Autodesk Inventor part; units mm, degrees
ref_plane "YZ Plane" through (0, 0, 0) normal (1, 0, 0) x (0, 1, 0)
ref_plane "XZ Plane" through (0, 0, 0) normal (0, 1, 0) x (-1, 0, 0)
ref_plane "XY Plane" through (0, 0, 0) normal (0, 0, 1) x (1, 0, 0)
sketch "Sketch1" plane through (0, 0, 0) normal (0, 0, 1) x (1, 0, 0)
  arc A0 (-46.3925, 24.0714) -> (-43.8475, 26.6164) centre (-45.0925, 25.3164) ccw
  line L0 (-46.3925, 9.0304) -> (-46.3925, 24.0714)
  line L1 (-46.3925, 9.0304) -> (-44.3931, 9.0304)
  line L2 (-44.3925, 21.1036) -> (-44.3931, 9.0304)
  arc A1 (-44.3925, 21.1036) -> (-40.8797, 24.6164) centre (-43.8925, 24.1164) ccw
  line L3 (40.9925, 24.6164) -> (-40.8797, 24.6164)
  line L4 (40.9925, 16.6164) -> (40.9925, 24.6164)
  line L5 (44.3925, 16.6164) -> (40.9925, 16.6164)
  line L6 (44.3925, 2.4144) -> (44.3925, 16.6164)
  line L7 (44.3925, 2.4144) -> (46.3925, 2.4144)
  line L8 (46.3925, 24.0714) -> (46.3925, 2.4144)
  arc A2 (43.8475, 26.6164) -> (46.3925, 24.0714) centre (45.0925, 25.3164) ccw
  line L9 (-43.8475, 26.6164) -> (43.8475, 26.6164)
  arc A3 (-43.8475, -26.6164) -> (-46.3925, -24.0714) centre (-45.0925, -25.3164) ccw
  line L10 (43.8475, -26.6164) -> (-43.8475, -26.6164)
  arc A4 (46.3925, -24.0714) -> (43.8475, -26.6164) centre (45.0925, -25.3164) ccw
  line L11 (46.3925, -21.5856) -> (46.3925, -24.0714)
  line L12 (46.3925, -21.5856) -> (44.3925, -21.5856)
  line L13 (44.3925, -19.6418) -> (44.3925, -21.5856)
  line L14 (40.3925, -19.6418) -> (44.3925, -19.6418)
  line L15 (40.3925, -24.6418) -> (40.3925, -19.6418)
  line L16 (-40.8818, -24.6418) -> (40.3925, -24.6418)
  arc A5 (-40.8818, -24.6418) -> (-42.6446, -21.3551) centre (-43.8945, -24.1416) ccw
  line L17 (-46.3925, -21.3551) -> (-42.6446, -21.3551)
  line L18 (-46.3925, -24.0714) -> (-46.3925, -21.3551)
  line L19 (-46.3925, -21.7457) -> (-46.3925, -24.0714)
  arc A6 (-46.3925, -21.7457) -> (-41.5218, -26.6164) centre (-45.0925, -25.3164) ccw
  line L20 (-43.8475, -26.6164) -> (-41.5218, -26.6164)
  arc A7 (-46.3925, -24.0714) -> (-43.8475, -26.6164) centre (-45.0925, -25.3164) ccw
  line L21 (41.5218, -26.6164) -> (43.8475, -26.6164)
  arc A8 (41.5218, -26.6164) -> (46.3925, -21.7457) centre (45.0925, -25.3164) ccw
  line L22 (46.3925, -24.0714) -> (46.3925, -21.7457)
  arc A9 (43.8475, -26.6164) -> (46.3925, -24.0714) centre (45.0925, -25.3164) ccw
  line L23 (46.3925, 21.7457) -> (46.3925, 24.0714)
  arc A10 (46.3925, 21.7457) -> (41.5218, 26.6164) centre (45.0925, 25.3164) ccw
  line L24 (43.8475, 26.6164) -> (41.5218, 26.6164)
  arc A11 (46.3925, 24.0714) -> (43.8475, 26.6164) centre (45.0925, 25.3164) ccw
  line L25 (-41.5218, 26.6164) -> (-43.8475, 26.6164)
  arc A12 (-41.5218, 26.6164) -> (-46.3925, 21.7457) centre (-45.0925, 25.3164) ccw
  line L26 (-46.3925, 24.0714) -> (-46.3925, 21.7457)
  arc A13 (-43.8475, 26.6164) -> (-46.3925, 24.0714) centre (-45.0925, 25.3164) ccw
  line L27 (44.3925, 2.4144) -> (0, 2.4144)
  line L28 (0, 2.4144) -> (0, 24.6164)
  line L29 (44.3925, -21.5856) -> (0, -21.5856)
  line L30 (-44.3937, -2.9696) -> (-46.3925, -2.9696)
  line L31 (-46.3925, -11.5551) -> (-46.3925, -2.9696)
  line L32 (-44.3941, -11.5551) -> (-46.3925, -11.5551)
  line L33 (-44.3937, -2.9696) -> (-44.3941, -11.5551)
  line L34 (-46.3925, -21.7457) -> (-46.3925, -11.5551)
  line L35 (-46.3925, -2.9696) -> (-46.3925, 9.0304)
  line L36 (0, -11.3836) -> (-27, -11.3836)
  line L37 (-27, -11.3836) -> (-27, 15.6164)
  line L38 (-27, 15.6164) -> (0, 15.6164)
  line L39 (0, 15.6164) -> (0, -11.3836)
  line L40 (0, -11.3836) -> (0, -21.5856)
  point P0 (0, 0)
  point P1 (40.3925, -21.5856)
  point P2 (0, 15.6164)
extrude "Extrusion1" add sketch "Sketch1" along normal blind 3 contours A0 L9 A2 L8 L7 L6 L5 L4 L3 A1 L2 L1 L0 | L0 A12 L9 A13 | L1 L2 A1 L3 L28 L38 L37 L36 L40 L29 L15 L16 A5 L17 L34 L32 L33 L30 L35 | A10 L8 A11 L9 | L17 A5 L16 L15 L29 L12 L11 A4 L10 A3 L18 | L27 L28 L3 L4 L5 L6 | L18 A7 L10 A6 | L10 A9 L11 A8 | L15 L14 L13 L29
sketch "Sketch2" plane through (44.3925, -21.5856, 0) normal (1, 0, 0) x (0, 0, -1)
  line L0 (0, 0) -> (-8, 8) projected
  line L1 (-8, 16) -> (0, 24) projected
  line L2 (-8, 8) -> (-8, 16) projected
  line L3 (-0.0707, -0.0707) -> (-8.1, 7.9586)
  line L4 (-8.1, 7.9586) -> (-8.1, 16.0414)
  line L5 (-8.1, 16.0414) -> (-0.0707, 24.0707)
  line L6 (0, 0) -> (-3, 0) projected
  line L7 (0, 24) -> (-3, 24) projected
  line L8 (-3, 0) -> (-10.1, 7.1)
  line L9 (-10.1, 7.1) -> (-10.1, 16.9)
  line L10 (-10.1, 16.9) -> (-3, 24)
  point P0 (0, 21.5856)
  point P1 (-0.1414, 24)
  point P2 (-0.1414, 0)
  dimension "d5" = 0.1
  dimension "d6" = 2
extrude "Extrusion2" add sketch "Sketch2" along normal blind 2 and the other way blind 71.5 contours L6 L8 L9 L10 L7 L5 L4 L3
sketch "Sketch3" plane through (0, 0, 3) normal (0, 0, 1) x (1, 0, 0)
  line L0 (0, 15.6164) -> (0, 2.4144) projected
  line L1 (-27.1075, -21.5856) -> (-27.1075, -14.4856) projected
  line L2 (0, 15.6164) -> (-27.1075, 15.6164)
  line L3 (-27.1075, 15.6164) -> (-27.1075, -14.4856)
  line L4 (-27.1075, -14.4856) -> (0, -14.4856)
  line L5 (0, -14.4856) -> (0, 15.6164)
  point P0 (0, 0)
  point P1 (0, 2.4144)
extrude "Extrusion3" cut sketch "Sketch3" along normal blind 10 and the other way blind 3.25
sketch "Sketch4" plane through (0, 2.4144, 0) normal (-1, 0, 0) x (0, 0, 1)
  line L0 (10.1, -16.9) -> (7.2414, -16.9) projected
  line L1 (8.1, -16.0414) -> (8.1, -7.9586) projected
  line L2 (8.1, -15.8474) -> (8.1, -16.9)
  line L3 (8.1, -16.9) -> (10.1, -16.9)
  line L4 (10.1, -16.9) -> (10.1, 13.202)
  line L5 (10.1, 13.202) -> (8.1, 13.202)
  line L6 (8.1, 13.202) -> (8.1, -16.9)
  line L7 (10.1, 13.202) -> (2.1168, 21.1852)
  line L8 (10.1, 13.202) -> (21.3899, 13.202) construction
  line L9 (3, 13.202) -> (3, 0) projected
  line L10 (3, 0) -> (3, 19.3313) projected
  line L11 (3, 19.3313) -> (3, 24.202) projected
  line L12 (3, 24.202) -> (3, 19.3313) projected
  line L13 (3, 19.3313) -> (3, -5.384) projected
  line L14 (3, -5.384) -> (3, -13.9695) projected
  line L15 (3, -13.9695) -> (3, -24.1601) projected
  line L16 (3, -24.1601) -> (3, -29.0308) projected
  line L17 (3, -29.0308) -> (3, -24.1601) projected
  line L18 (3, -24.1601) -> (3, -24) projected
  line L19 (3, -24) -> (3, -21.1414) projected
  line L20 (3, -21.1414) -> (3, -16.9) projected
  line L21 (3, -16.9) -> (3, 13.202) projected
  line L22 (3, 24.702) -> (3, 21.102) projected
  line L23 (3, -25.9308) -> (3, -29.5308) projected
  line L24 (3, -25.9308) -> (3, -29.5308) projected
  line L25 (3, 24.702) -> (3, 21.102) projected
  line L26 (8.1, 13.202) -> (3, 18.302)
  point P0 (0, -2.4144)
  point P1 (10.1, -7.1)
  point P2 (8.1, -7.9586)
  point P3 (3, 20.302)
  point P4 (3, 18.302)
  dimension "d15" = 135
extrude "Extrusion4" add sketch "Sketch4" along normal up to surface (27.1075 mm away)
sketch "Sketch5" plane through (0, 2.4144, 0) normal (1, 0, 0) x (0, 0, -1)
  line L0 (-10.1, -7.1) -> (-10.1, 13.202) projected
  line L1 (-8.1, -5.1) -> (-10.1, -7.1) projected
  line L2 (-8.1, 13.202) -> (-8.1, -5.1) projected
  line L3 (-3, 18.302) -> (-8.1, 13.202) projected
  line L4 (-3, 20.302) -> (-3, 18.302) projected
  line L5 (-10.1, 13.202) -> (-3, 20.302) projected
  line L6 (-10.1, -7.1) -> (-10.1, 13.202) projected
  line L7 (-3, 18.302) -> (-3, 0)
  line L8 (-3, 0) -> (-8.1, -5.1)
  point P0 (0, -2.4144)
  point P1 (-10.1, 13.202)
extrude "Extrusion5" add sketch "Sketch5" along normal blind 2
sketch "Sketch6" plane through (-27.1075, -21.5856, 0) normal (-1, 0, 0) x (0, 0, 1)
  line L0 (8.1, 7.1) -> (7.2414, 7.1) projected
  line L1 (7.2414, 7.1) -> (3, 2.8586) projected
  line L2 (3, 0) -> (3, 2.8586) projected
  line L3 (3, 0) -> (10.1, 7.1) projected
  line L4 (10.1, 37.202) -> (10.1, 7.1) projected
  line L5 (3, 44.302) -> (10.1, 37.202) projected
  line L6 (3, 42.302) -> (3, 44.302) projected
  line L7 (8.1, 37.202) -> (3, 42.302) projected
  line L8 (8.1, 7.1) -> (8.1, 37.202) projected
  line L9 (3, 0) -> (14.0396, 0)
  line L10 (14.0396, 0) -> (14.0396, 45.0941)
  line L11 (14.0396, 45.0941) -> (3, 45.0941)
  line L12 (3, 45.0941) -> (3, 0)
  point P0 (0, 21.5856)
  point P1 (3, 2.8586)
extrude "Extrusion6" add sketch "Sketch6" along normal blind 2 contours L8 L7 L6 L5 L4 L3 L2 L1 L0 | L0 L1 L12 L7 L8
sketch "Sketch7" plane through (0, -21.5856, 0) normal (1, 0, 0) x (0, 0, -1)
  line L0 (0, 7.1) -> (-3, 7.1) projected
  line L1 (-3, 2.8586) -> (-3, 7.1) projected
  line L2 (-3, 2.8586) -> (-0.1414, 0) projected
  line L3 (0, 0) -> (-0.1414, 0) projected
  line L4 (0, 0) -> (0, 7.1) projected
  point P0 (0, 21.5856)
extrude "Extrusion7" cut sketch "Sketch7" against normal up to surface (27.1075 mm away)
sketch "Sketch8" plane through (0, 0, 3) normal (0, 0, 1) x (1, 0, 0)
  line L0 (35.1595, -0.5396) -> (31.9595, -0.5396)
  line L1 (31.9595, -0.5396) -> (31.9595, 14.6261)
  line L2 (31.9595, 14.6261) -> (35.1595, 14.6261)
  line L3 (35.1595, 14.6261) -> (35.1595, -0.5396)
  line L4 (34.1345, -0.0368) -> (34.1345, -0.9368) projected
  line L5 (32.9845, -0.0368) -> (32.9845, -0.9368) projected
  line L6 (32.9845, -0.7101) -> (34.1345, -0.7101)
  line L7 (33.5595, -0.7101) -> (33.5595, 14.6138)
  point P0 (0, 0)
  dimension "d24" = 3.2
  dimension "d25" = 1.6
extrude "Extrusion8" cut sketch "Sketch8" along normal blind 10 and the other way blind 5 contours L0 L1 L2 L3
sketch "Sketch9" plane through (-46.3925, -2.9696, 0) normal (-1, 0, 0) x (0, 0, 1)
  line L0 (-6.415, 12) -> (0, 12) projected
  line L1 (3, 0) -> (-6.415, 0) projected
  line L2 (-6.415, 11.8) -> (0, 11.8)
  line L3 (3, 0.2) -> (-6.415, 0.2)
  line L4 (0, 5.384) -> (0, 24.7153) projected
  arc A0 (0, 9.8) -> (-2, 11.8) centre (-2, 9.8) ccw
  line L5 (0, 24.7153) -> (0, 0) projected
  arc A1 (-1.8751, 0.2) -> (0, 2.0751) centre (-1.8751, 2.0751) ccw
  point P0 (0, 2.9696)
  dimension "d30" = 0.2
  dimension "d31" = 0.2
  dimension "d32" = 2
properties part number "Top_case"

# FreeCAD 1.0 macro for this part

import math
import FreeCAD as App
import Part
import Sketcher
Q = App.Units.Quantity

doc = App.newDocument("Part")
body = doc.addObject("PartDesign::Body", "Body")

sketch1 = body.newObject("Sketcher::SketchObject", "Sketch")
sketch1.AttachmentSupport = (doc.getObject("XY_Plane"), [""])
sketch1.MapMode = "FlatFace"
sketch1.addGeometry(Part.LineSegment(App.Vector(41.52, 26.62, 0), App.Vector(-41.52, 26.62, 0)), False)
sketch1.addGeometry(Part.ArcOfCircle(Part.Circle(App.Vector(-45.09, 25.32, 0), App.Vector(0, 0, 1), 3.8), math.radians(20), math.radians(250)), False)
sketch1.addGeometry(Part.LineSegment(App.Vector(-46.39, 21.75, 0), App.Vector(-46.39, -2.97, 0)), False)
sketch1.addGeometry(Part.LineSegment(App.Vector(-46.39, -2.97, 0), App.Vector(-44.39, -2.97, 0)), False)
sketch1.addGeometry(Part.LineSegment(App.Vector(-44.39, -2.97, 0), App.Vector(-44.39, -11.56, 0)), False)
sketch1.addGeometry(Part.LineSegment(App.Vector(-44.39, -11.56, 0), App.Vector(-46.39, -11.56, 0)), False)
sketch1.addGeometry(Part.LineSegment(App.Vector(-46.39, -11.56, 0), App.Vector(-46.39, -21.75, 0)), False)
sketch1.addGeometry(Part.ArcOfCircle(Part.Circle(App.Vector(-45.09, -25.32, 0), App.Vector(0, 0, 1), 3.8), math.radians(110), math.radians(340)), False)
sketch1.addGeometry(Part.LineSegment(App.Vector(-41.52, -26.62, 0), App.Vector(41.52, -26.62, 0)), False)
sketch1.addGeometry(Part.ArcOfCircle(Part.Circle(App.Vector(45.09, -25.32, 0), App.Vector(0, 0, 1), 3.8), math.radians(-160), math.radians(70)), False)
sketch1.addGeometry(Part.LineSegment(App.Vector(46.39, -21.75, 0), App.Vector(46.39, -21.59, 0)), False)
sketch1.addGeometry(Part.LineSegment(App.Vector(46.39, -21.59, 0), App.Vector(44.39, -21.59, 0)), False)
sketch1.addGeometry(Part.LineSegment(App.Vector(44.39, -21.59, 0), App.Vector(44.39, -19.64, 0)), False)
sketch1.addGeometry(Part.LineSegment(App.Vector(44.39, -19.64, 0), App.Vector(40.39, -19.64, 0)), False)
sketch1.addGeometry(Part.LineSegment(App.Vector(40.39, -19.64, 0), App.Vector(40.39, -21.59, 0)), False)
sketch1.addGeometry(Part.LineSegment(App.Vector(40.39, -21.59, 0), App.Vector(0, -21.59, 0)), False)
sketch1.addGeometry(Part.LineSegment(App.Vector(0, -21.59, 0), App.Vector(0, -11.38, 0)), False)
sketch1.addGeometry(Part.LineSegment(App.Vector(0, -11.38, 0), App.Vector(-27, -11.38, 0)), False)
sketch1.addGeometry(Part.LineSegment(App.Vector(-27, -11.38, 0), App.Vector(-27, 15.62, 0)), False)
sketch1.addGeometry(Part.LineSegment(App.Vector(-27, 15.62, 0), App.Vector(0, 15.62, 0)), False)
sketch1.addGeometry(Part.LineSegment(App.Vector(0, 15.62, 0), App.Vector(0, 2.41, 0)), False)
sketch1.addGeometry(Part.LineSegment(App.Vector(0, 2.41, 0), App.Vector(46.39, 2.41, 0)), False)
sketch1.addGeometry(Part.LineSegment(App.Vector(46.39, 2.41, 0), App.Vector(46.39, 21.75, 0)), False)
sketch1.addGeometry(Part.ArcOfCircle(Part.Circle(App.Vector(45.09, 25.32, 0), App.Vector(0, 0, 1), 3.8), math.radians(-70), math.radians(160)), False)
sketch1.addGeometry(Part.Circle(App.Vector(-45.09, 25.32, 0), App.Vector(0, 0, 1), 1.8), False)
sketch1.addGeometry(Part.Circle(App.Vector(45.09, 25.32, 0), App.Vector(0, 0, 1), 1.8), False)
sketch1.addGeometry(Part.Circle(App.Vector(-45.09, -25.32, 0), App.Vector(0, 0, 1), 1.8), False)
sketch1.addGeometry(Part.Circle(App.Vector(45.09, -25.32, 0), App.Vector(0, 0, 1), 1.8), False)
sketch1.addConstraint(Sketcher.Constraint("Coincident", 0, 2, 1, 1))
sketch1.addConstraint(Sketcher.Constraint("Coincident", 1, 2, 2, 1))
sketch1.addConstraint(Sketcher.Constraint("Coincident", 2, 2, 3, 1))
sketch1.addConstraint(Sketcher.Constraint("Coincident", 3, 2, 4, 1))
sketch1.addConstraint(Sketcher.Constraint("Coincident", 4, 2, 5, 1))
sketch1.addConstraint(Sketcher.Constraint("Coincident", 5, 2, 6, 1))
sketch1.addConstraint(Sketcher.Constraint("Coincident", 6, 2, 7, 1))
sketch1.addConstraint(Sketcher.Constraint("Coincident", 7, 2, 8, 1))
sketch1.addConstraint(Sketcher.Constraint("Coincident", 8, 2, 9, 1))
sketch1.addConstraint(Sketcher.Constraint("Coincident", 9, 2, 10, 1))
sketch1.addConstraint(Sketcher.Constraint("Coincident", 10, 2, 11, 1))
sketch1.addConstraint(Sketcher.Constraint("Coincident", 11, 2, 12, 1))
sketch1.addConstraint(Sketcher.Constraint("Coincident", 12, 2, 13, 1))
sketch1.addConstraint(Sketcher.Constraint("Coincident", 13, 2, 14, 1))
sketch1.addConstraint(Sketcher.Constraint("Coincident", 14, 2, 15, 1))
sketch1.addConstraint(Sketcher.Constraint("Coincident", 15, 2, 16, 1))
sketch1.addConstraint(Sketcher.Constraint("Coincident", 16, 2, 17, 1))
sketch1.addConstraint(Sketcher.Constraint("Coincident", 17, 2, 18, 1))
sketch1.addConstraint(Sketcher.Constraint("Coincident", 18, 2, 19, 1))
sketch1.addConstraint(Sketcher.Constraint("Coincident", 19, 2, 20, 1))
sketch1.addConstraint(Sketcher.Constraint("Coincident", 20, 2, 21, 1))
sketch1.addConstraint(Sketcher.Constraint("Coincident", 21, 2, 22, 1))
sketch1.addConstraint(Sketcher.Constraint("Coincident", 22, 2, 23, 1))
sketch1.addConstraint(Sketcher.Constraint("Coincident", 23, 2, 0, 1))
sketch1.addConstraint(Sketcher.Constraint("Horizontal", 0))
sketch1.addConstraint(Sketcher.Constraint("Vertical", 2))
sketch1.addConstraint(Sketcher.Constraint("Horizontal", 3))
sketch1.addConstraint(Sketcher.Constraint("Horizontal", 5))
sketch1.addConstraint(Sketcher.Constraint("Vertical", 6))
sketch1.addConstraint(Sketcher.Constraint("Horizontal", 8))
sketch1.addConstraint(Sketcher.Constraint("Vertical", 10))
sketch1.addConstraint(Sketcher.Constraint("Horizontal", 11))
sketch1.addConstraint(Sketcher.Constraint("Vertical", 12))
sketch1.addConstraint(Sketcher.Constraint("Horizontal", 13))
sketch1.addConstraint(Sketcher.Constraint("Vertical", 14))
sketch1.addConstraint(Sketcher.Constraint("Horizontal", 15))
sketch1.addConstraint(Sketcher.Constraint("Vertical", 16))
sketch1.addConstraint(Sketcher.Constraint("Horizontal", 17))
sketch1.addConstraint(Sketcher.Constraint("Vertical", 18))
sketch1.addConstraint(Sketcher.Constraint("Horizontal", 19))
sketch1.addConstraint(Sketcher.Constraint("Vertical", 20))
sketch1.addConstraint(Sketcher.Constraint("Horizontal", 21))
sketch1.addConstraint(Sketcher.Constraint("Vertical", 22))
sketch1.addConstraint(Sketcher.Constraint("Coincident", 24, 3, 1, 3))
sketch1.addConstraint(Sketcher.Constraint("Coincident", 25, 3, 23, 3))
sketch1.addConstraint(Sketcher.Constraint("Coincident", 26, 3, 7, 3))
sketch1.addConstraint(Sketcher.Constraint("Coincident", 27, 3, 9, 3))
sketch1.addConstraint(Sketcher.Constraint("Equal", 1, 7))
sketch1.addConstraint(Sketcher.Constraint("Equal", 7, 9))
sketch1.addConstraint(Sketcher.Constraint("Equal", 9, 23))
sketch1.addConstraint(Sketcher.Constraint("Equal", 24, 25))
sketch1.addConstraint(Sketcher.Constraint("Equal", 25, 26))
sketch1.addConstraint(Sketcher.Constraint("Equal", 26, 27))
sketch1.addConstraint(Sketcher.Constraint("Symmetric", 1, 3, 9, 3, -1, 1))
sketch1.addConstraint(Sketcher.Constraint("Symmetric", 7, 3, 23, 3, -1, 1))
sketch1.addConstraint(Sketcher.Constraint("Symmetric", 7, 3, 9, 3, -2))
sketch1.addConstraint(Sketcher.Constraint("PointOnObject", 15, 2, -2))
sketch1.addConstraint(Sketcher.Constraint("PointOnObject", 19, 2, -2))
sketch1.addConstraint(Sketcher.Constraint("Horizontal", 6, 2, 9, 2))
sketch1.addConstraint(Sketcher.Constraint("Horizontal", 11, 2, 14, 2))
sketch1.addConstraint(Sketcher.Constraint("Horizontal", 1, 2, 22, 2))
sketch1.addConstraint(Sketcher.Constraint("Vertical", 2, 2, 5, 2))
sketch1.addConstraint(Sketcher.Constraint("Vertical", 0, 2, 7, 2))
sketch1.addConstraint(Sketcher.Constraint("Equal", 19, 18))
sketch1.addConstraint(Sketcher.Constraint("Diameter", 24, Q("3.6 mm")))
sketch1.addConstraint(Sketcher.Constraint("Radius", 1, Q("3.8 mm")))
sketch1.addConstraint(Sketcher.Constraint("DistanceX", 11, 2, 11, 1, Q("2 mm")))
sketch1.addConstraint(Sketcher.Constraint("DistanceX", 13, 2, 13, 1, Q("4 mm")))
sketch1.addConstraint(Sketcher.Constraint("DistanceX", 17, 2, 17, 1, Q("27 mm")))
sketch1.addConstraint(Sketcher.Constraint("DistanceY", 18, 2, 0, 2, Q("11 mm")))
sketch1.addConstraint(Sketcher.Constraint("DistanceY", 15, 2, 20, 2, Q("24 mm")))
sketch1.addConstraint(Sketcher.Constraint("DistanceY", 10, 1, 10, 2, Q("0.16 mm")))
sketch1.addConstraint(Sketcher.Constraint("DistanceY", 1, 3, 0, 2, Q("1.3 mm")))
sketch1.addConstraint(Sketcher.Constraint("DistanceX", 1, 2, 1, 3, Q("1.3 mm")))
sketch1.addConstraint(Sketcher.Constraint("DistanceY", 16, 1, 16, 2, Q("10.202 mm")))
sketch1.addConstraint(Sketcher.Constraint("DistanceX", 0, 2, 0, 1, Q("83.0436 mm")))
sketch1.addConstraint(Sketcher.Constraint("DistanceX", 3, 1, 3, 2, Q("1.9988 mm")))
sketch1.addConstraint(Sketcher.Constraint("DistanceX", 5, 2, 5, 1, Q("1.9984 mm")))
sketch1.addConstraint(Sketcher.Constraint("DistanceY", 2, 2, 2, 1, Q("24.7153 mm")))
sketch1.addConstraint(Sketcher.Constraint("DistanceY", 6, 2, 6, 1, Q("10.1906 mm")))
sketch1.addConstraint(Sketcher.Constraint("DistanceY", 12, 1, 12, 2, Q("1.9438 mm")))
pad1 = body.newObject("PartDesign::Pad", "Pad")
pad1.Profile = sketch1
pad1.Length = 3

sketch2 = body.newObject("Sketcher::SketchObject", "Sketch001")
sketch2.AttachmentSupport = (doc.getObject("YZ_Plane"), [""])
sketch2.MapMode = "FlatFace"
sketch2.AttachmentOffset = App.Placement(App.Vector(0, 0, 44.3925), App.Rotation())
sketch2.addGeometry(Part.LineSegment(App.Vector(-21.6, 3, 0), App.Vector(-21.6, 0.1, 0)), False)
sketch2.addGeometry(Part.LineSegment(App.Vector(-21.6, 0.1, 0), App.Vector(-13.6, 8.1, 0)), False)
sketch2.addGeometry(Part.LineSegment(App.Vector(-13.6, 8.1, 0), App.Vector(-5.5, 8.1, 0)), False)
sketch2.addGeometry(Part.LineSegment(App.Vector(-5.5, 8.1, 0), App.Vector(2.4, 0.1, 0)), False)
sketch2.addGeometry(Part.LineSegment(App.Vector(2.4, 0.1, 0), App.Vector(2.4, 3, 0)), False)
sketch2.addGeometry(Part.LineSegment(App.Vector(2.4, 3, 0), App.Vector(-4.7, 10.1, 0)), False)
sketch2.addGeometry(Part.LineSegment(App.Vector(-4.7, 10.1, 0), App.Vector(-14.5, 10.1, 0)), False)
sketch2.addGeometry(Part.LineSegment(App.Vector(-14.5, 10.1, 0), App.Vector(-21.6, 3, 0)), False)
sketch2.addConstraint(Sketcher.Constraint("Coincident", 0, 2, 1, 1))
sketch2.addConstraint(Sketcher.Constraint("Coincident", 1, 2, 2, 1))
sketch2.addConstraint(Sketcher.Constraint("Coincident", 2, 2, 3, 1))
sketch2.addConstraint(Sketcher.Constraint("Coincident", 3, 2, 4, 1))
sketch2.addConstraint(Sketcher.Constraint("Coincident", 4, 2, 5, 1))
sketch2.addConstraint(Sketcher.Constraint("Coincident", 5, 2, 6, 1))
sketch2.addConstraint(Sketcher.Constraint("Coincident", 6, 2, 7, 1))
sketch2.addConstraint(Sketcher.Constraint("Coincident", 7, 2, 0, 1))
sketch2.addConstraint(Sketcher.Constraint("Vertical", 0))
sketch2.addConstraint(Sketcher.Constraint("Horizontal", 2))
sketch2.addConstraint(Sketcher.Constraint("Vertical", 4))
sketch2.addConstraint(Sketcher.Constraint("Horizontal", 6))
sketch2.addConstraint(Sketcher.Constraint("Perpendicular", 1, 3))
sketch2.addConstraint(Sketcher.Constraint("Parallel", 3, 5))
sketch2.addConstraint(Sketcher.Constraint("Perpendicular", 5, 7))
sketch2.addConstraint(Sketcher.Constraint("Horizontal", 0, 2, 3, 2))
sketch2.addConstraint(Sketcher.Constraint("Horizontal", 4, 2, 7, 2))
sketch2.addConstraint(Sketcher.Constraint("Equal", 1, 3))
sketch2.addConstraint(Sketcher.Constraint("DistanceY", 2, 2, 5, 2, Q("2 mm")))
sketch2.addConstraint(Sketcher.Constraint("DistanceX", 6, 2, 6, 1, Q("9.8 mm")))
sketch2.addConstraint(Sketcher.Constraint("DistanceY", -1, 1, 4, 2, Q("3 mm")))
sketch2.addConstraint(Sketcher.Constraint("DistanceX", 0, 2, 3, 2, Q("24 mm")))
sketch2.addConstraint(Sketcher.Constraint("DistanceX", 2, 1, 2, 2, Q("8.0828 mm")))
sketch2.addConstraint(Sketcher.Constraint("DistanceX", 1, 2, -1, 1, Q("13.627 mm")))
pad2 = body.newObject("PartDesign::Pad", "Pad001")
pad2.Profile = sketch2
pad2.Type = "TwoLengths"
pad2.Length = 2
pad2.Length2 = 71.5

sketch3 = body.newObject("Sketcher::SketchObject", "Sketch002")
sketch3.AttachmentSupport = (doc.getObject("XY_Plane"), [""])
sketch3.MapMode = "FlatFace"
sketch3.AttachmentOffset = App.Placement(App.Vector(0, 0, 3), App.Rotation())
sketch3.addGeometry(Part.LineSegment(App.Vector(0, -14, 0), App.Vector(0, 16, 0)), False)
sketch3.addGeometry(Part.LineSegment(App.Vector(0, 16, 0), App.Vector(-27, 16, 0)), False)
sketch3.addGeometry(Part.LineSegment(App.Vector(-27, 16, 0), App.Vector(-27, -14, 0)), False)
sketch3.addGeometry(Part.LineSegment(App.Vector(-27, -14, 0), App.Vector(0, -14, 0)), False)
sketch3.addConstraint(Sketcher.Constraint("Coincident", 0, 2, 1, 1))
sketch3.addConstraint(Sketcher.Constraint("Coincident", 1, 2, 2, 1))
sketch3.addConstraint(Sketcher.Constraint("Coincident", 2, 2, 3, 1))
sketch3.addConstraint(Sketcher.Constraint("Coincident", 3, 2, 0, 1))
sketch3.addConstraint(Sketcher.Constraint("Vertical", 0))
sketch3.addConstraint(Sketcher.Constraint("Horizontal", 1))
sketch3.addConstraint(Sketcher.Constraint("Vertical", 2))
sketch3.addConstraint(Sketcher.Constraint("Horizontal", 3))
sketch3.addConstraint(Sketcher.Constraint("PointOnObject", 0, 2, -2))
sketch3.addConstraint(Sketcher.Constraint("DistanceY", 0, 1, 0, 2, Q("30.102 mm")))
sketch3.addConstraint(Sketcher.Constraint("DistanceX", 1, 2, 1, 1, Q("27.1075 mm")))
sketch3.addConstraint(Sketcher.Constraint("DistanceY", -1, 1, 0, 2, Q("15.6164 mm")))
pocket1 = body.newObject("PartDesign::Pocket", "Pocket")
pocket1.Profile = sketch3
pocket1.Type = "ThroughAll"
pocket1.Midplane = True

sketch4 = body.newObject("Sketcher::SketchObject", "Sketch003")
sketch4.AttachmentSupport = (doc.getObject("YZ_Plane"), [""])
sketch4.MapMode = "FlatFace"
sketch4.addGeometry(Part.LineSegment(App.Vector(-14.5, 8.1, 0), App.Vector(-14.5, 10.1, 0)), False)
sketch4.addGeometry(Part.LineSegment(App.Vector(-14.5, 10.1, 0), App.Vector(15.6, 10.1, 0)), False)
sketch4.addGeometry(Part.LineSegment(App.Vector(15.6, 10.1, 0), App.Vector(22.7, 3, 0)), False)
sketch4.addGeometry(Part.LineSegment(App.Vector(22.7, 3, 0), App.Vector(20.7, 3, 0)), False)
sketch4.addGeometry(Part.LineSegment(App.Vector(20.7, 3, 0), App.Vector(15.6, 8.1, 0)), False)
sketch4.addGeometry(Part.LineSegment(App.Vector(15.6, 8.1, 0), App.Vector(-14.5, 8.1, 0)), False)
sketch4.addConstraint(Sketcher.Constraint("Coincident", 0, 2, 1, 1))
sketch4.addConstraint(Sketcher.Constraint("Coincident", 1, 2, 2, 1))
sketch4.addConstraint(Sketcher.Constraint("Coincident", 2, 2, 3, 1))
sketch4.addConstraint(Sketcher.Constraint("Coincident", 3, 2, 4, 1))
sketch4.addConstraint(Sketcher.Constraint("Coincident", 4, 2, 5, 1))
sketch4.addConstraint(Sketcher.Constraint("Coincident", 5, 2, 0, 1))
sketch4.addConstraint(Sketcher.Constraint("Vertical", 0))
sketch4.addConstraint(Sketcher.Constraint("Horizontal", 1))
sketch4.addConstraint(Sketcher.Constraint("Horizontal", 3))
sketch4.addConstraint(Sketcher.Constraint("Horizontal", 5))
sketch4.addConstraint(Sketcher.Constraint("Parallel", 2, 4))
sketch4.addConstraint(Sketcher.Constraint("Vertical", 1, 2, 4, 2))
sketch4.addConstraint(Sketcher.Constraint("Equal", 3, 0))
sketch4.addConstraint(Sketcher.Constraint("DistanceX", 3, 2, 3, 1, Q("2 mm")))
sketch4.addConstraint(Sketcher.Constraint("DistanceY", -1, 1, 2, 2, Q("3 mm")))
sketch4.addConstraint(Sketcher.Constraint("DistanceY", -1, 1, 0, 2, Q("10.1 mm")))
sketch4.addConstraint(Sketcher.Constraint("DistanceX", 1, 1, 1, 2, Q("30.102 mm")))
sketch4.addConstraint(Sketcher.Constraint("DistanceX", 0, 2, -1, 1, Q("14.4856 mm")))
pad3 = body.newObject("PartDesign::Pad", "Pad002")
pad3.Profile = sketch4
pad3.Length = 27.1075
pad3.Reversed = True

sketch5 = body.newObject("Sketcher::SketchObject", "Sketch004")
sketch5.AttachmentSupport = (doc.getObject("YZ_Plane"), [""])
sketch5.MapMode = "FlatFace"
sketch5.addGeometry(Part.LineSegment(App.Vector(16, 10, 0), App.Vector(-5, 10, 0)), False)
sketch5.addGeometry(Part.LineSegment(App.Vector(-5, 10, 0), App.Vector(2, 3, 0)), False)
sketch5.addGeometry(Part.LineSegment(App.Vector(2, 3, 0), App.Vector(23, 3, 0)), False)
sketch5.addGeometry(Part.LineSegment(App.Vector(23, 3, 0), App.Vector(16, 10, 0)), False)
sketch5.addConstraint(Sketcher.Constraint("Coincident", 0, 2, 1, 1))
sketch5.addConstraint(Sketcher.Constraint("Coincident", 1, 2, 2, 1))
sketch5.addConstraint(Sketcher.Constraint("Coincident", 2, 2, 3, 1))
sketch5.addConstraint(Sketcher.Constraint("Coincident", 3, 2, 0, 1))
sketch5.addConstraint(Sketcher.Constraint("Horizontal", 0))
sketch5.addConstraint(Sketcher.Constraint("Horizontal", 2))
sketch5.addConstraint(Sketcher.Constraint("Parallel", 1, 3))
sketch5.addConstraint(Sketcher.Constraint("Angle", 1, Q("-45 deg")))
sketch5.addConstraint(Sketcher.Constraint("DistanceY", -1, 1, 1, 2, Q("3 mm")))
sketch5.addConstraint(Sketcher.Constraint("DistanceY", -1, 1, 0, 2, Q("10.1 mm")))
sketch5.addConstraint(Sketcher.Constraint("DistanceX", 0, 2, 0, 1, Q("20.302 mm")))
sketch5.addConstraint(Sketcher.Constraint("DistanceX", 0, 2, -1, 1, Q("4.6856 mm")))
pad4 = body.newObject("PartDesign::Pad", "Pad003")
pad4.Profile = sketch5
pad4.Length = 2

sketch6 = body.newObject("Sketcher::SketchObject", "Sketch005")
sketch6.AttachmentSupport = (doc.getObject("YZ_Plane"), [""])
sketch6.MapMode = "FlatFace"
sketch6.AttachmentOffset = App.Placement(App.Vector(0, 0, -27.1075), App.Rotation())
sketch6.addGeometry(Part.LineSegment(App.Vector(23, 3, 0), App.Vector(-22, 3, 0)), False)
sketch6.addGeometry(Part.LineSegment(App.Vector(-22, 3, 0), App.Vector(-14, 10, 0)), False)
sketch6.addGeometry(Part.LineSegment(App.Vector(-14, 10, 0), App.Vector(16, 10, 0)), False)
sketch6.addGeometry(Part.LineSegment(App.Vector(16, 10, 0), App.Vector(23, 3, 0)), False)
sketch6.addConstraint(Sketcher.Constraint("Coincident", 0, 2, 1, 1))
sketch6.addConstraint(Sketcher.Constraint("Coincident", 1, 2, 2, 1))
sketch6.addConstraint(Sketcher.Constraint("Coincident", 2, 2, 3, 1))
sketch6.addConstraint(Sketcher.Constraint("Coincident", 3, 2, 0, 1))
sketch6.addConstraint(Sketcher.Constraint("Horizontal", 0))
sketch6.addConstraint(Sketcher.Constraint("Horizontal", 2))
sketch6.addConstraint(Sketcher.Constraint("Perpendicular", 1, 3))
sketch6.addConstraint(Sketcher.Constraint("Equal", 1, 3))
sketch6.addConstraint(Sketcher.Constraint("DistanceY", -1, 1, 0, 2, Q("3 mm")))
sketch6.addConstraint(Sketcher.Constraint("DistanceY", -1, 1, 1, 2, Q("10.1 mm")))
sketch6.addConstraint(Sketcher.Constraint("DistanceX", 0, 2, 0, 1, Q("44.302 mm")))
sketch6.addConstraint(Sketcher.Constraint("DistanceX", 0, 2, -1, 1, Q("21.5856 mm")))
pad5 = body.newObject("PartDesign::Pad", "Pad004")
pad5.Profile = sketch6
pad5.Length = 2
pad5.Reversed = True

sketch7 = body.newObject("Sketcher::SketchObject", "Sketch006")
sketch7.AttachmentSupport = (doc.getObject("YZ_Plane"), [""])
sketch7.MapMode = "FlatFace"
sketch7.addGeometry(Part.LineSegment(App.Vector(-21.59, 0, 0), App.Vector(-14.49, 0, 0)), False)
sketch7.addGeometry(Part.LineSegment(App.Vector(-14.49, 0, 0), App.Vector(-14.49, 3, 0)), False)
sketch7.addGeometry(Part.LineSegment(App.Vector(-14.49, 3, 0), App.Vector(-18.73, 3, 0)), False)
sketch7.addGeometry(Part.LineSegment(App.Vector(-18.73, 3, 0), App.Vector(-21.59, 0.14, 0)), False)
sketch7.addGeometry(Part.LineSegment(App.Vector(-21.59, 0.14, 0), App.Vector(-21.59, 0, 0)), False)
sketch7.addConstraint(Sketcher.Constraint("Coincident", 0, 2, 1, 1))
sketch7.addConstraint(Sketcher.Constraint("Coincident", 1, 2, 2, 1))
sketch7.addConstraint(Sketcher.Constraint("Coincident", 2, 2, 3, 1))
sketch7.addConstraint(Sketcher.Constraint("Coincident", 3, 2, 4, 1))
sketch7.addConstraint(Sketcher.Constraint("Coincident", 4, 2, 0, 1))
sketch7.addConstraint(Sketcher.Constraint("Horizontal", 0))
sketch7.addConstraint(Sketcher.Constraint("Vertical", 1))
sketch7.addConstraint(Sketcher.Constraint("Horizontal", 2))
sketch7.addConstraint(Sketcher.Constraint("Vertical", 4))
sketch7.addConstraint(Sketcher.Constraint("PointOnObject", 0, 2, -1))
sketch7.addConstraint(Sketcher.Constraint("DistanceY", 1, 1, 1, 2, Q("3 mm")))
sketch7.addConstraint(Sketcher.Constraint("Angle", 3, Q("-135 deg")))
sketch7.addConstraint(Sketcher.Constraint("DistanceX", 0, 1, 0, 2, Q("7.1 mm")))
sketch7.addConstraint(Sketcher.Constraint("DistanceX", 2, 2, 2, 1, Q("4.2414 mm")))
sketch7.addConstraint(Sketcher.Constraint("DistanceX", 2, 2, -1, 1, Q("18.727 mm")))
pocket2 = body.newObject("PartDesign::Pocket", "Pocket001")
pocket2.Profile = sketch7
pocket2.Length = 27.1075

sketch8 = body.newObject("Sketcher::SketchObject", "Sketch007")
sketch8.AttachmentSupport = (doc.getObject("XY_Plane"), [""])
sketch8.MapMode = "FlatFace"
sketch8.AttachmentOffset = App.Placement(App.Vector(0, 0, 3), App.Rotation())
sketch8.addGeometry(Part.LineSegment(App.Vector(32, -0.5, 0), App.Vector(35.2, -0.5, 0)), False)
sketch8.addGeometry(Part.LineSegment(App.Vector(35.2, -0.5, 0), App.Vector(35.2, 14.6, 0)), False)
sketch8.addGeometry(Part.LineSegment(App.Vector(35.2, 14.6, 0), App.Vector(32, 14.6, 0)), False)
sketch8.addGeometry(Part.LineSegment(App.Vector(32, 14.6, 0), App.Vector(32, -0.5, 0)), False)
sketch8.addConstraint(Sketcher.Constraint("Coincident", 0, 2, 1, 1))
sketch8.addConstraint(Sketcher.Constraint("Coincident", 1, 2, 2, 1))
sketch8.addConstraint(Sketcher.Constraint("Coincident", 2, 2, 3, 1))
sketch8.addConstraint(Sketcher.Constraint("Coincident", 3, 2, 0, 1))
sketch8.addConstraint(Sketcher.Constraint("Horizontal", 0))
sketch8.addConstraint(Sketcher.Constraint("Vertical", 1))
sketch8.addConstraint(Sketcher.Constraint("Horizontal", 2))
sketch8.addConstraint(Sketcher.Constraint("Vertical", 3))
sketch8.addConstraint(Sketcher.Constraint("DistanceX", 0, 1, 0, 2, Q("3.2 mm")))
sketch8.addConstraint(Sketcher.Constraint("DistanceY", 1, 1, 1, 2, Q("15.1657 mm")))
sketch8.addConstraint(Sketcher.Constraint("DistanceY", -1, 1, 1, 2, Q("14.626 mm")))
sketch8.addConstraint(Sketcher.Constraint("DistanceX", -1, 1, 0, 2, Q("35.1595 mm")))
pocket3 = body.newObject("PartDesign::Pocket", "Pocket002")
pocket3.Profile = sketch8
pocket3.Type = "ThroughAll"
pocket3.Midplane = True

doc.recompute()
